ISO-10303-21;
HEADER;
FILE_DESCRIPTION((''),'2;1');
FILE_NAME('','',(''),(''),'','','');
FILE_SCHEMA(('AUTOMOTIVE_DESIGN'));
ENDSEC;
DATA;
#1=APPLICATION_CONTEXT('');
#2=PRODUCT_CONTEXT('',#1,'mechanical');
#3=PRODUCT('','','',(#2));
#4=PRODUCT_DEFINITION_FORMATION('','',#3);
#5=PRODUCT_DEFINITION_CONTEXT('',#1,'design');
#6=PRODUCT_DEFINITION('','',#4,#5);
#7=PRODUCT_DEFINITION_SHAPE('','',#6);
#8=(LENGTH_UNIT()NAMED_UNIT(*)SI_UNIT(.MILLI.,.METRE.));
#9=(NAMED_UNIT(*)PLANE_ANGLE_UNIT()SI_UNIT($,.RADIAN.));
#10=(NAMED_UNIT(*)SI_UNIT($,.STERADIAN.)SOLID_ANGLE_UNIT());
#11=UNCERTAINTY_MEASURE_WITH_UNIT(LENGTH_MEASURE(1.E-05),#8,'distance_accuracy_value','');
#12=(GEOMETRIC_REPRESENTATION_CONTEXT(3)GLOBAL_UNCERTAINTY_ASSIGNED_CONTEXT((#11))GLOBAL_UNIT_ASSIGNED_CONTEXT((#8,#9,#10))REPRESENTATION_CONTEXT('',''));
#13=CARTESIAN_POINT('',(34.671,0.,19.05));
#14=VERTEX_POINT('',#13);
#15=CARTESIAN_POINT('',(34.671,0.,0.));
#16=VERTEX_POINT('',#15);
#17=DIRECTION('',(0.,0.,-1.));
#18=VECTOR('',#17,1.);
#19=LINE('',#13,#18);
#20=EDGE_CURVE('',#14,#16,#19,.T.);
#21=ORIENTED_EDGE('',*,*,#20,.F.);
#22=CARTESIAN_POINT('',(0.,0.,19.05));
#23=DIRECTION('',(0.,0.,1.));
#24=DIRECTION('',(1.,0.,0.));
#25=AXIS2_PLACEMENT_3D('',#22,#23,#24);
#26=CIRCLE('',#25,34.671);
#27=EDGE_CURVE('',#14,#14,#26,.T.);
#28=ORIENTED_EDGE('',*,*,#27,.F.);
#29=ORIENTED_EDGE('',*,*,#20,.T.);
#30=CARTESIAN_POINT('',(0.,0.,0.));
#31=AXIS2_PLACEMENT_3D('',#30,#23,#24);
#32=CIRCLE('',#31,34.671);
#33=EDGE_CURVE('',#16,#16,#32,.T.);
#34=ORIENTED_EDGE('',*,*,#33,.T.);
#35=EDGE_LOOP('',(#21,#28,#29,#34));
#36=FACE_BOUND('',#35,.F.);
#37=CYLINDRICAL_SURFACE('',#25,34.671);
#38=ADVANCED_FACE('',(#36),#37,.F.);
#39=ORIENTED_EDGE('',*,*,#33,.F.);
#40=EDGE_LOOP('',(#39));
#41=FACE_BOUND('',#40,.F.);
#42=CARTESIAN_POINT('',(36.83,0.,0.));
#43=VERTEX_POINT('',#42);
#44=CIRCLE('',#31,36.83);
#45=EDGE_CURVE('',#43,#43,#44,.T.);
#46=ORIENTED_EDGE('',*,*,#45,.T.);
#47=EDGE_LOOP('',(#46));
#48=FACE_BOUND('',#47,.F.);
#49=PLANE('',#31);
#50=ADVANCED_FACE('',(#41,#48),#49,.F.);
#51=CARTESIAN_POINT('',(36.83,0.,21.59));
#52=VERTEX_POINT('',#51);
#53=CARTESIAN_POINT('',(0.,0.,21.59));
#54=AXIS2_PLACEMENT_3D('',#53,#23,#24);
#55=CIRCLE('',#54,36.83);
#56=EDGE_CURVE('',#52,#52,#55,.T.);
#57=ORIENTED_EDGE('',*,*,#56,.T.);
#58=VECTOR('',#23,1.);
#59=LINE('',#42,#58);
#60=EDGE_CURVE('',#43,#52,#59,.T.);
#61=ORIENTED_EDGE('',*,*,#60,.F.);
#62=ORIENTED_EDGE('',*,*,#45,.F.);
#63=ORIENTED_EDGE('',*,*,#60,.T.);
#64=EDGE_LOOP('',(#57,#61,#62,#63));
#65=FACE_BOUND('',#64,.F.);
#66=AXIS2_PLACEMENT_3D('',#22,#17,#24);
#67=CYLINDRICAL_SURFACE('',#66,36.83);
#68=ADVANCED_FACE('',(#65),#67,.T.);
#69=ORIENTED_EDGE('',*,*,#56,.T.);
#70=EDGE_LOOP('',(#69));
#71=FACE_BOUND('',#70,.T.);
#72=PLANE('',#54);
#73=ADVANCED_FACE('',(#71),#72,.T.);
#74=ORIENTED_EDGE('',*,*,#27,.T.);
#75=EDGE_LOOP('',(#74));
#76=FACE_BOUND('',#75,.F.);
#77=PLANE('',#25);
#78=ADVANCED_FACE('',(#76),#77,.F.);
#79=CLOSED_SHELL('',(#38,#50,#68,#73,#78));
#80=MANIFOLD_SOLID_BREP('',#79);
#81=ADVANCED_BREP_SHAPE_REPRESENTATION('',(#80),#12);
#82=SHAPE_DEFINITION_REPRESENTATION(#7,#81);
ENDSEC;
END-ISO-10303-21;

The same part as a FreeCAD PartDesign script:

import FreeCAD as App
import Part
import Sketcher
Q = App.Units.Quantity

doc = App.newDocument("Part")
body = doc.addObject("PartDesign::Body", "Body")

sketch1 = doc.addObject("Sketcher::SketchObject", "Sketch")
body.addObject(sketch1)
sketch1.AttachmentSupport = (doc.XY_Plane, [""])
sketch1.MapMode = "FlatFace"
sketch1.addGeometry(Part.Circle(App.Vector(0, 0, 0), App.Vector(0, 0, 1), 37), False)
sketch1.addConstraint([
    Sketcher.Constraint("Coincident", 0, 3, -1, 1),
    Sketcher.Constraint("Diameter", 0, Q("2.9 in")),
])
pad1 = doc.addObject("PartDesign::Pad", "Pad")
body.addObject(pad1)
pad1.Profile = sketch1
pad1.Length = Q("0.75 in")

sketch2 = doc.addObject("Sketcher::SketchObject", "Sketch001")
body.addObject(sketch2)
sketch2.AttachmentSupport = (doc.XY_Plane, [""])
sketch2.MapMode = "FlatFace"
sketch2.AttachmentOffset = App.Placement(App.Vector(0, 0, 0.75 * 25.4), App.Rotation())
sketch2.addGeometry(Part.Circle(App.Vector(0, 0, 0), App.Vector(0, 0, 1), 35), False)
sketch2.addConstraint([
    Sketcher.Constraint("Coincident", 0, 3, -1, 1),
    Sketcher.Constraint("Diameter", 0, Q("2.73 in")),
])
pocket1 = doc.addObject("PartDesign::Pocket", "Pocket")
body.addObject(pocket1)
pocket1.Profile = sketch2
pocket1.Length = Q("3.85 in")

sketch3 = doc.addObject("Sketcher::SketchObject", "Sketch002")
body.addObject(sketch3)
sketch3.AttachmentSupport = (doc.XY_Plane, [""])
sketch3.MapMode = "FlatFace"
sketch3.AttachmentOffset = App.Placement(App.Vector(0, 0, 0.75 * 25.4), App.Rotation())
sketch3.addGeometry(Part.Circle(App.Vector(0, 0, 0), App.Vector(0, 0, 1), 37), False)
sketch3.addConstraint([
    Sketcher.Constraint("Coincident", 0, 3, -1, 1),
    Sketcher.Constraint("Diameter", 0, Q("2.9 in")),
])
pad2 = doc.addObject("PartDesign::Pad", "Pad001")
body.addObject(pad2)
pad2.Profile = sketch3
pad2.Length = Q("0.1 in")

doc.recompute()
